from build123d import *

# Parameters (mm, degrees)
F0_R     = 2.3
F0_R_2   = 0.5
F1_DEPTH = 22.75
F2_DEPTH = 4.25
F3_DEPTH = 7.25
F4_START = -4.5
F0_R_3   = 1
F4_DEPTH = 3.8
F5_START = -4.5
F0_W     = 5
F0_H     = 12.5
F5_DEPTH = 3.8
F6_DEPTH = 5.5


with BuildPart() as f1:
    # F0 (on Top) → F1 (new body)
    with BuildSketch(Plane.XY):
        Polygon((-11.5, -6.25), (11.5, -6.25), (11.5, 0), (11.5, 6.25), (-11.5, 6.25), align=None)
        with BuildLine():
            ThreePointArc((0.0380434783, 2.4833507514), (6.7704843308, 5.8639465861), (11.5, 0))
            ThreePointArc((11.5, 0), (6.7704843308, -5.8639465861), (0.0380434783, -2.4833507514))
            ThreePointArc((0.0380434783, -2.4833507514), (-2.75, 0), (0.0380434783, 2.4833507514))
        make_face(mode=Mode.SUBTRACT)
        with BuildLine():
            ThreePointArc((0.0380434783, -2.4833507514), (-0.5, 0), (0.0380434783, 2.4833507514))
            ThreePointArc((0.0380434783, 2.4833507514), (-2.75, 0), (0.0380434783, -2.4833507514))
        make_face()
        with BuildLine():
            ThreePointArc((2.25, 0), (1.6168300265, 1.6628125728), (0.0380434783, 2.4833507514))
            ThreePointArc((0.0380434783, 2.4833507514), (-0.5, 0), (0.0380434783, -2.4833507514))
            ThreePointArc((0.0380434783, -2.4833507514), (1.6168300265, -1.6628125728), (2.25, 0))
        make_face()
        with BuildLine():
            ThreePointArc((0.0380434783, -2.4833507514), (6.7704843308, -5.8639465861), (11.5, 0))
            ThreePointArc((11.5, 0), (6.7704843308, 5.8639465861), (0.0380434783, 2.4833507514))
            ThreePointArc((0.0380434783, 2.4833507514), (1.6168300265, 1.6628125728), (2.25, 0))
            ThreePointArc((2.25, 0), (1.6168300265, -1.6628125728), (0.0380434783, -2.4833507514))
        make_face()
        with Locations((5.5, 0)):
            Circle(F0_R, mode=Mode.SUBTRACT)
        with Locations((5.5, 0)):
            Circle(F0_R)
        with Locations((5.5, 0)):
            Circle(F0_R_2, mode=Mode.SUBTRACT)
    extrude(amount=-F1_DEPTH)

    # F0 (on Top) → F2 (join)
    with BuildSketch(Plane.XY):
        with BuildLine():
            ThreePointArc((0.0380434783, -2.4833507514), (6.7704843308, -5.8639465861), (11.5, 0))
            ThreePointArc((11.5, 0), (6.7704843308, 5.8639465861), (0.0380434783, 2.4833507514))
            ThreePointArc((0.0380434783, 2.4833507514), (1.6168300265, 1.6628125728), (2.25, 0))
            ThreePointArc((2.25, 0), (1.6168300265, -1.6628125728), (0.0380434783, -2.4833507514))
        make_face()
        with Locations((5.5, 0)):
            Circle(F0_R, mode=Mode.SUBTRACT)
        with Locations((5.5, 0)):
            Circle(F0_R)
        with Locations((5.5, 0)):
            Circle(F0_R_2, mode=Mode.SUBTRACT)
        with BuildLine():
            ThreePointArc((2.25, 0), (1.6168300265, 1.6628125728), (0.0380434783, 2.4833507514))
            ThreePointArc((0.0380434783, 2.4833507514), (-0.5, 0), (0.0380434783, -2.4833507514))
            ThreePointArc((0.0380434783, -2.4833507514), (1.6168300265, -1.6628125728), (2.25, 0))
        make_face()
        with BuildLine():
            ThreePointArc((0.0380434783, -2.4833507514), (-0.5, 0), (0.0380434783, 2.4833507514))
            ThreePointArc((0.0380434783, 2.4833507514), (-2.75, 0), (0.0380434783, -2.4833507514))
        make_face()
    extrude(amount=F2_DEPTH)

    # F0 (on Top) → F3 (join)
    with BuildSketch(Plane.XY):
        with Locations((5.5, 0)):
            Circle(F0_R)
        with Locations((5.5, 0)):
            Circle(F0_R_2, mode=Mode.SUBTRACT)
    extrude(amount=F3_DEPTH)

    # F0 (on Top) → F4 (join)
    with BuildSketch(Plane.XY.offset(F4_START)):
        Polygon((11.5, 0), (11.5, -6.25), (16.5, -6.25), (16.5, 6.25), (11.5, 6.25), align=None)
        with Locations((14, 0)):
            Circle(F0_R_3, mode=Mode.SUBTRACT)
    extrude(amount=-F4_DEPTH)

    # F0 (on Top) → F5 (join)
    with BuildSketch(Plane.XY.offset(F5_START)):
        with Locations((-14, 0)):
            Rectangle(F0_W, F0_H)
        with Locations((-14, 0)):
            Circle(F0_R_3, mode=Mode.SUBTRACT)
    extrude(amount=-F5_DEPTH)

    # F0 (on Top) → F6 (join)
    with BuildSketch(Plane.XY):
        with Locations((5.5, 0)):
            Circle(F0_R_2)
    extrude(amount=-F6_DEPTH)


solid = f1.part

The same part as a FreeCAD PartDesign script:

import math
import FreeCAD as App
import Part
import Sketcher

doc = App.newDocument("Part")
body = doc.addObject("PartDesign::Body", "Body")

sketch1 = body.newObject("Sketcher::SketchObject", "Sketch")
sketch1.AttachmentSupport = (doc.getObject("XY_Plane"), [""])
sketch1.MapMode = "FlatFace"
sketch1.addGeometry(Part.LineSegment(App.Vector(11.5, -6.2, 0), App.Vector(11.5, 6.2, 0)), False)
sketch1.addGeometry(Part.LineSegment(App.Vector(11.5, 6.2, 0), App.Vector(-11.5, 6.2, 0)), False)
sketch1.addGeometry(Part.LineSegment(App.Vector(-11.5, 6.2, 0), App.Vector(-11.5, -6.2, 0)), False)
sketch1.addGeometry(Part.LineSegment(App.Vector(-11.5, -6.2, 0), App.Vector(11.5, -6.2, 0)), False)
sketch1.addGeometry(Part.Circle(App.Vector(5.5, 0, 0), App.Vector(0, 0, 1), 0.5), False)
sketch1.addConstraint(Sketcher.Constraint("Coincident", 0, 2, 1, 1))
sketch1.addConstraint(Sketcher.Constraint("Coincident", 1, 2, 2, 1))
sketch1.addConstraint(Sketcher.Constraint("Coincident", 2, 2, 3, 1))
sketch1.addConstraint(Sketcher.Constraint("Coincident", 3, 2, 0, 1))
sketch1.addConstraint(Sketcher.Constraint("Vertical", 0))
sketch1.addConstraint(Sketcher.Constraint("Horizontal", 1))
sketch1.addConstraint(Sketcher.Constraint("Vertical", 2))
sketch1.addConstraint(Sketcher.Constraint("Horizontal", 3))
sketch1.addConstraint(Sketcher.Constraint("Symmetric", 0, 2, 2, 2, -1, 1))
sketch1.addConstraint(Sketcher.Constraint("PointOnObject", 4, 3, -1))
sketch1.addConstraint(Sketcher.Constraint("Diameter", 4, 1.0))
sketch1.addConstraint(Sketcher.Constraint("DistanceX", 1, 2, 1, 1, 23.0))
sketch1.addConstraint(Sketcher.Constraint("DistanceY", 0, 1, 0, 2, 12.5))
sketch1.addConstraint(Sketcher.Constraint("DistanceX", 4, 3, 0, 2, 6.0))
pad1 = body.newObject("PartDesign::Pad", "Pad")
pad1.Profile = sketch1
pad1.Length = 22.75
pad1.Reversed = True

sketch2 = body.newObject("Sketcher::SketchObject", "Sketch001")
sketch2.AttachmentSupport = (doc.getObject("XY_Plane"), [""])
sketch2.MapMode = "FlatFace"
sketch2.addGeometry(Part.ArcOfCircle(Part.Circle(App.Vector(5.5, 0, 0), App.Vector(0, 0, 1), 6), math.radians(-156), math.radians(0)), False)
sketch2.addGeometry(Part.ArcOfCircle(Part.Circle(App.Vector(5.5, 0, 0), App.Vector(0, 0, 1), 6), math.radians(0), math.radians(156)), False)
sketch2.addGeometry(Part.ArcOfCircle(Part.Circle(App.Vector(-0.2, 0, 0), App.Vector(0, 0, 1), 2.5), math.radians(83), math.radians(277)), False)
sketch2.addGeometry(Part.Circle(App.Vector(5.5, 0, 0), App.Vector(0, 0, 1), 0.5), False)
sketch2.addConstraint(Sketcher.Constraint("Tangent", 0, 2, 1, 1))
sketch2.addConstraint(Sketcher.Constraint("Coincident", 1, 2, 2, 1))
sketch2.addConstraint(Sketcher.Constraint("Coincident", 2, 2, 0, 1))
sketch2.addConstraint(Sketcher.Constraint("Coincident", 3, 3, 0, 3))
sketch2.addConstraint(Sketcher.Constraint("Equal", 0, 1))
sketch2.addConstraint(Sketcher.Constraint("Symmetric", 1, 2, 2, 2, -1))
sketch2.addConstraint(Sketcher.Constraint("PointOnObject", 0, 2, -1))
sketch2.addConstraint(Sketcher.Constraint("Diameter", 3, 1.0))
sketch2.addConstraint(Sketcher.Constraint("Radius", 0, 6.0))
sketch2.addConstraint(Sketcher.Constraint("Radius", 2, 2.5))
sketch2.addConstraint(Sketcher.Constraint("DistanceX", -1, 1, 0, 3, 5.5))
sketch2.addConstraint(Sketcher.Constraint("DistanceX", 2, 3, -1, 1, 0.25))
pad2 = body.newObject("PartDesign::Pad", "Pad001")
pad2.Profile = sketch2
pad2.Length = 4.25

sketch3 = body.newObject("Sketcher::SketchObject", "Sketch002")
sketch3.AttachmentSupport = (doc.getObject("XY_Plane"), [""])
sketch3.MapMode = "FlatFace"
sketch3.addGeometry(Part.Circle(App.Vector(5.5, 0, 0), App.Vector(0, 0, 1), 2.3), False)
sketch3.addGeometry(Part.Circle(App.Vector(5.5, 0, 0), App.Vector(0, 0, 1), 0.5), False)
sketch3.addConstraint(Sketcher.Constraint("Coincident", 1, 3, 0, 3))
sketch3.addConstraint(Sketcher.Constraint("PointOnObject", 0, 3, -1))
sketch3.addConstraint(Sketcher.Constraint("Diameter", 1, 1.0))
sketch3.addConstraint(Sketcher.Constraint("Diameter", 0, 4.6))
sketch3.addConstraint(Sketcher.Constraint("DistanceX", -1, 1, 0, 3, 5.5))
pad3 = body.newObject("PartDesign::Pad", "Pad002")
pad3.Profile = sketch3
pad3.Length = 7.25

sketch4 = body.newObject("Sketcher::SketchObject", "Sketch003")
sketch4.AttachmentSupport = (doc.getObject("XY_Plane"), [""])
sketch4.MapMode = "FlatFace"
sketch4.AttachmentOffset = App.Placement(App.Vector(0, 0, -4.5), App.Rotation())
sketch4.addGeometry(Part.LineSegment(App.Vector(11.5, -6.2, 0), App.Vector(16.5, -6.2, 0)), False)
sketch4.addGeometry(Part.LineSegment(App.Vector(16.5, -6.2, 0), App.Vector(16.5, 6.2, 0)), False)
sketch4.addGeometry(Part.LineSegment(App.Vector(16.5, 6.2, 0), App.Vector(11.5, 6.2, 0)), False)
sketch4.addGeometry(Part.LineSegment(App.Vector(11.5, 6.2, 0), App.Vector(11.5, -6.2, 0)), False)
sketch4.addGeometry(Part.Circle(App.Vector(14, 0, 0), App.Vector(0, 0, 1), 1), False)
sketch4.addConstraint(Sketcher.Constraint("Coincident", 0, 2, 1, 1))
sketch4.addConstraint(Sketcher.Constraint("Coincident", 1, 2, 2, 1))
sketch4.addConstraint(Sketcher.Constraint("Coincident", 2, 2, 3, 1))
sketch4.addConstraint(Sketcher.Constraint("Coincident", 3, 2, 0, 1))
sketch4.addConstraint(Sketcher.Constraint("Horizontal", 0))
sketch4.addConstraint(Sketcher.Constraint("Vertical", 1))
sketch4.addConstraint(Sketcher.Constraint("Horizontal", 2))
sketch4.addConstraint(Sketcher.Constraint("Vertical", 3))
sketch4.addConstraint(Sketcher.Constraint("PointOnObject", 4, 3, -1))
sketch4.addConstraint(Sketcher.Constraint("Diameter", 4, 2.0))
sketch4.addConstraint(Sketcher.Constraint("DistanceX", 0, 1, 0, 2, 5.0))
sketch4.addConstraint(Sketcher.Constraint("DistanceY", 1, 1, 1, 2, 12.5))
sketch4.addConstraint(Sketcher.Constraint("DistanceX", -1, 1, 4, 3, 14.0))
sketch4.addConstraint(Sketcher.Constraint("DistanceX", -1, 1, 0, 2, 16.5))
sketch4.addConstraint(Sketcher.Constraint("DistanceY", 0, 2, -1, 1, 6.25))
pad4 = body.newObject("PartDesign::Pad", "Pad003")
pad4.Profile = sketch4
pad4.Length = 3.8
pad4.Reversed = True

sketch5 = body.newObject("Sketcher::SketchObject", "Sketch004")
sketch5.AttachmentSupport = (doc.getObject("XY_Plane"), [""])
sketch5.MapMode = "FlatFace"
sketch5.AttachmentOffset = App.Placement(App.Vector(0, 0, -4.5), App.Rotation())
sketch5.addGeometry(Part.LineSegment(App.Vector(-16.5, 6.2, 0), App.Vector(-16.5, -6.2, 0)), False)
sketch5.addGeometry(Part.LineSegment(App.Vector(-16.5, -6.2, 0), App.Vector(-11.5, -6.2, 0)), False)
sketch5.addGeometry(Part.LineSegment(App.Vector(-11.5, -6.2, 0), App.Vector(-11.5, 6.2, 0)), False)
sketch5.addGeometry(Part.LineSegment(App.Vector(-11.5, 6.2, 0), App.Vector(-16.5, 6.2, 0)), False)
sketch5.addGeometry(Part.Circle(App.Vector(-14, 0, 0), App.Vector(0, 0, 1), 1), False)
sketch5.addConstraint(Sketcher.Constraint("Coincident", 0, 2, 1, 1))
sketch5.addConstraint(Sketcher.Constraint("Coincident", 1, 2, 2, 1))
sketch5.addConstraint(Sketcher.Constraint("Coincident", 2, 2, 3, 1))
sketch5.addConstraint(Sketcher.Constraint("Coincident", 3, 2, 0, 1))
sketch5.addConstraint(Sketcher.Constraint("Vertical", 0))
sketch5.addConstraint(Sketcher.Constraint("Horizontal", 1))
sketch5.addConstraint(Sketcher.Constraint("Vertical", 2))
sketch5.addConstraint(Sketcher.Constraint("Horizontal", 3))
sketch5.addConstraint(Sketcher.Constraint("PointOnObject", 4, 3, -1))
sketch5.addConstraint(Sketcher.Constraint("Diameter", 4, 2.0))
sketch5.addConstraint(Sketcher.Constraint("DistanceX", 1, 1, 1, 2, 5.0))
sketch5.addConstraint(Sketcher.Constraint("DistanceY", 0, 2, 0, 1, 12.5))
sketch5.addConstraint(Sketcher.Constraint("DistanceX", 4, 3, -1, 1, 14.0))
sketch5.addConstraint(Sketcher.Constraint("DistanceX", 0, 2, -1, 1, 16.5))
sketch5.addConstraint(Sketcher.Constraint("DistanceY", 0, 2, -1, 1, 6.25))
pad5 = body.newObject("PartDesign::Pad", "Pad004")
pad5.Profile = sketch5
pad5.Length = 3.8
pad5.Reversed = True

sketch6 = body.newObject("Sketcher::SketchObject", "Sketch005")
sketch6.AttachmentSupport = (doc.getObject("XY_Plane"), [""])
sketch6.MapMode = "FlatFace"
sketch6.addGeometry(Part.Circle(App.Vector(5.5, 0, 0), App.Vector(0, 0, 1), 0.5), False)
sketch6.addConstraint(Sketcher.Constraint("PointOnObject", 0, 3, -1))
sketch6.addConstraint(Sketcher.Constraint("Diameter", 0, 1.0))
sketch6.addConstraint(Sketcher.Constraint("DistanceX", -1, 1, 0, 3, 5.5))
pad6 = body.newObject("PartDesign::Pad", "Pad005")
pad6.Profile = sketch6
pad6.Length = 5.5
pad6.Reversed = True

doc.recompute()
